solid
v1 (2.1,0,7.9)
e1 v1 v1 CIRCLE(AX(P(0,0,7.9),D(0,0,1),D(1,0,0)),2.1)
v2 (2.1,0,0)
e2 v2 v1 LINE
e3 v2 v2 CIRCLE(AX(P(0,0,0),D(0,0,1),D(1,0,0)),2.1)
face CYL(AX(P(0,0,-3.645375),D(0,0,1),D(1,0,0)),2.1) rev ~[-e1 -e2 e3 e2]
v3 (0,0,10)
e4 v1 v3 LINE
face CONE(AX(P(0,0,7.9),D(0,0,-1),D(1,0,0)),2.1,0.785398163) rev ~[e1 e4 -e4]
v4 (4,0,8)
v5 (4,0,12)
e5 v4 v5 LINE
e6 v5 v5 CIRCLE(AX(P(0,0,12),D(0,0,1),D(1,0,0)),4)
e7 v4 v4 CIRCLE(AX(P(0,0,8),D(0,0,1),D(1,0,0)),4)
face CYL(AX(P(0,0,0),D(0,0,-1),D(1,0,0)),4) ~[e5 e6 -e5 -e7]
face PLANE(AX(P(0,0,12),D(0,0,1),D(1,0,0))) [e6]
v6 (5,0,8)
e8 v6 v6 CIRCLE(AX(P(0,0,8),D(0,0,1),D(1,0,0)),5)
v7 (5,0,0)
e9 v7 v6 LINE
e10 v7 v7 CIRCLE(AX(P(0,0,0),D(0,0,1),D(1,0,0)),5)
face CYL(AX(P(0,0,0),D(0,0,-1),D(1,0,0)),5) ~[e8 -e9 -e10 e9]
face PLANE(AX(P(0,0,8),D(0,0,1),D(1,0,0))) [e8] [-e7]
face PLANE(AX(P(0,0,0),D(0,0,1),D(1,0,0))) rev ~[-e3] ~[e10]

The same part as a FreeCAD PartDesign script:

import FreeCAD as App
import Part
import Sketcher

V = App.Vector
Q = App.Units.Quantity

doc = App.newDocument("Part")
body = doc.addObject("PartDesign::Body", "Body")

sketch1 = body.newObject("Sketcher::SketchObject", "Sketch")
sketch1.AttachmentSupport = (doc.getObject("XY_Plane"), [""])
sketch1.MapMode = "FlatFace"
sketch1.addGeometry(Part.Circle(V(0, 0, 0), V(0, 0, 1), 5), False)
sketch1.addGeometry(Part.Circle(V(0, 0, 0), V(0, 0, 1), 4), False)
sketch1.addConstraint(Sketcher.Constraint("Coincident", 0, 3, -1, 1))
sketch1.addConstraint(Sketcher.Constraint("Coincident", 1, 3, -1, 1))
sketch1.addConstraint(Sketcher.Constraint("Diameter", 0, 10.0))
sketch1.addConstraint(Sketcher.Constraint("Diameter", 1, 8.0))
pad1 = body.newObject("PartDesign::Pad", "Pad")
pad1.Profile = sketch1
pad1.Length = 8

sketch2 = body.newObject("Sketcher::SketchObject", "Sketch001")
sketch2.AttachmentSupport = (doc.getObject("XY_Plane"), [""])
sketch2.MapMode = "FlatFace"
sketch2.addGeometry(Part.Circle(V(0, 0, 0), V(0, 0, 1), 4), False)
sketch2.addConstraint(Sketcher.Constraint("Coincident", 0, 3, -1, 1))
sketch2.addConstraint(Sketcher.Constraint("Diameter", 0, 8.0))
pad2 = body.newObject("PartDesign::Pad", "Pad001")
pad2.Profile = sketch2
pad2.Length = 12

sketch3 = body.newObject("Sketcher::SketchObject", "Sketch002")
sketch3.AttachmentSupport = (doc.getObject("XZ_Plane"), [""])
sketch3.MapMode = "FlatFace"
sketch3.addGeometry(Part.LineSegment(V(2.1, -3.645375, 0), V(2.1, 7.9, 0)), False)
sketch3.addGeometry(Part.LineSegment(V(2.1, 7.9, 0), V(0, 10, 0)), False)
sketch3.addGeometry(Part.LineSegment(V(0, 10, 0), V(0, -3.645375, 0)), False)
sketch3.addGeometry(Part.LineSegment(V(0, -3.645375, 0), V(2.1, -3.645375, 0)), False)
sketch3.addConstraint(Sketcher.Constraint("Coincident", 0, 2, 1, 1))
sketch3.addConstraint(Sketcher.Constraint("Coincident", 1, 2, 2, 1))
sketch3.addConstraint(Sketcher.Constraint("Coincident", 2, 2, 3, 1))
sketch3.addConstraint(Sketcher.Constraint("Coincident", 3, 2, 0, 1))
sketch3.addConstraint(Sketcher.Constraint("Vertical", 0))
sketch3.addConstraint(Sketcher.Constraint("Vertical", 2))
sketch3.addConstraint(Sketcher.Constraint("Horizontal", 3))
sketch3.addConstraint(Sketcher.Constraint("PointOnObject", 1, 2, -2))
sketch3.addConstraint(Sketcher.Constraint("Angle", 1, Q("135 deg")))
sketch3.addConstraint(Sketcher.Constraint("DistanceX", 3, 1, 3, 2, 2.1))
sketch3.addConstraint(Sketcher.Constraint("DistanceY", -1, 1, 1, 2, 10.0))
sketch3.addConstraint(Sketcher.Constraint("DistanceY", 0, 1, 0, 2, 11.545375))
groove = body.newObject("PartDesign::Groove", "Groove")
groove.Profile = sketch3
groove.ReferenceAxis = (sketch3, ["V_Axis"])
groove.Angle = 360

doc.recompute()
